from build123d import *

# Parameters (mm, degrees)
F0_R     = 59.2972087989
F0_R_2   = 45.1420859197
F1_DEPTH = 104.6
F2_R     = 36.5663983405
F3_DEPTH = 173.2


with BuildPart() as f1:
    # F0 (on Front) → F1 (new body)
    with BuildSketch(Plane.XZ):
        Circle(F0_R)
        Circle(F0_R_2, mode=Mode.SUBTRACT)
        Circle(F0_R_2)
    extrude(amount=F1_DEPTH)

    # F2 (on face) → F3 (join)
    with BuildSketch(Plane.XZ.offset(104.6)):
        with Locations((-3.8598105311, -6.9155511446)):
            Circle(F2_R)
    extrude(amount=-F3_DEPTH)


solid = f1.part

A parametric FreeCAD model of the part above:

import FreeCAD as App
import Part
import Sketcher
Q = App.Units.Quantity

doc = App.newDocument("Part")
body = doc.addObject("PartDesign::Body", "Body")

# Sketch on XZ plane
sketch1 = body.newObject("Sketcher::SketchObject", "Sketch")
sketch1.AttachmentSupport = (doc.getObject("XZ_Plane"), [""])
sketch1.MapMode = "FlatFace"
sketch1.addGeometry(Part.Circle(App.Vector(0, 0, 0), App.Vector(0, 0, 1), 59.297209), False)
sketch1.addConstraint([
    Sketcher.Constraint("Coincident", 0, 3, -1, 1),
    Sketcher.Constraint("Diameter", 0, Q("118.594418 mm")),
])
pad1 = body.newObject("PartDesign::Pad", "Pad")
pad1.Profile = sketch1
pad1.Length = 104.6

# Sketch on XZ plane
sketch2 = body.newObject("Sketcher::SketchObject", "Sketch001")
sketch2.AttachmentSupport = (doc.getObject("XZ_Plane"), [""])
sketch2.MapMode = "FlatFace"
sketch2.AttachmentOffset = App.Placement(App.Vector(0, 0, 104.6), App.Rotation())
sketch2.addGeometry(Part.Circle(App.Vector(-3.859811, -6.915551, 0), App.Vector(0, 0, 1), 36.566398), False)
sketch2.addConstraint([
    Sketcher.Constraint("Diameter", 0, Q("73.132797 mm")),
    Sketcher.Constraint("DistanceX", 0, 3, -1, 1, Q("3.859811 mm")),
    Sketcher.Constraint("DistanceY", 0, 3, -1, 1, Q("6.915551 mm")),
])
pad2 = body.newObject("PartDesign::Pad", "Pad001")
pad2.Profile = sketch2
pad2.Length = 173.2
pad2.Reversed = True

doc.recompute()
